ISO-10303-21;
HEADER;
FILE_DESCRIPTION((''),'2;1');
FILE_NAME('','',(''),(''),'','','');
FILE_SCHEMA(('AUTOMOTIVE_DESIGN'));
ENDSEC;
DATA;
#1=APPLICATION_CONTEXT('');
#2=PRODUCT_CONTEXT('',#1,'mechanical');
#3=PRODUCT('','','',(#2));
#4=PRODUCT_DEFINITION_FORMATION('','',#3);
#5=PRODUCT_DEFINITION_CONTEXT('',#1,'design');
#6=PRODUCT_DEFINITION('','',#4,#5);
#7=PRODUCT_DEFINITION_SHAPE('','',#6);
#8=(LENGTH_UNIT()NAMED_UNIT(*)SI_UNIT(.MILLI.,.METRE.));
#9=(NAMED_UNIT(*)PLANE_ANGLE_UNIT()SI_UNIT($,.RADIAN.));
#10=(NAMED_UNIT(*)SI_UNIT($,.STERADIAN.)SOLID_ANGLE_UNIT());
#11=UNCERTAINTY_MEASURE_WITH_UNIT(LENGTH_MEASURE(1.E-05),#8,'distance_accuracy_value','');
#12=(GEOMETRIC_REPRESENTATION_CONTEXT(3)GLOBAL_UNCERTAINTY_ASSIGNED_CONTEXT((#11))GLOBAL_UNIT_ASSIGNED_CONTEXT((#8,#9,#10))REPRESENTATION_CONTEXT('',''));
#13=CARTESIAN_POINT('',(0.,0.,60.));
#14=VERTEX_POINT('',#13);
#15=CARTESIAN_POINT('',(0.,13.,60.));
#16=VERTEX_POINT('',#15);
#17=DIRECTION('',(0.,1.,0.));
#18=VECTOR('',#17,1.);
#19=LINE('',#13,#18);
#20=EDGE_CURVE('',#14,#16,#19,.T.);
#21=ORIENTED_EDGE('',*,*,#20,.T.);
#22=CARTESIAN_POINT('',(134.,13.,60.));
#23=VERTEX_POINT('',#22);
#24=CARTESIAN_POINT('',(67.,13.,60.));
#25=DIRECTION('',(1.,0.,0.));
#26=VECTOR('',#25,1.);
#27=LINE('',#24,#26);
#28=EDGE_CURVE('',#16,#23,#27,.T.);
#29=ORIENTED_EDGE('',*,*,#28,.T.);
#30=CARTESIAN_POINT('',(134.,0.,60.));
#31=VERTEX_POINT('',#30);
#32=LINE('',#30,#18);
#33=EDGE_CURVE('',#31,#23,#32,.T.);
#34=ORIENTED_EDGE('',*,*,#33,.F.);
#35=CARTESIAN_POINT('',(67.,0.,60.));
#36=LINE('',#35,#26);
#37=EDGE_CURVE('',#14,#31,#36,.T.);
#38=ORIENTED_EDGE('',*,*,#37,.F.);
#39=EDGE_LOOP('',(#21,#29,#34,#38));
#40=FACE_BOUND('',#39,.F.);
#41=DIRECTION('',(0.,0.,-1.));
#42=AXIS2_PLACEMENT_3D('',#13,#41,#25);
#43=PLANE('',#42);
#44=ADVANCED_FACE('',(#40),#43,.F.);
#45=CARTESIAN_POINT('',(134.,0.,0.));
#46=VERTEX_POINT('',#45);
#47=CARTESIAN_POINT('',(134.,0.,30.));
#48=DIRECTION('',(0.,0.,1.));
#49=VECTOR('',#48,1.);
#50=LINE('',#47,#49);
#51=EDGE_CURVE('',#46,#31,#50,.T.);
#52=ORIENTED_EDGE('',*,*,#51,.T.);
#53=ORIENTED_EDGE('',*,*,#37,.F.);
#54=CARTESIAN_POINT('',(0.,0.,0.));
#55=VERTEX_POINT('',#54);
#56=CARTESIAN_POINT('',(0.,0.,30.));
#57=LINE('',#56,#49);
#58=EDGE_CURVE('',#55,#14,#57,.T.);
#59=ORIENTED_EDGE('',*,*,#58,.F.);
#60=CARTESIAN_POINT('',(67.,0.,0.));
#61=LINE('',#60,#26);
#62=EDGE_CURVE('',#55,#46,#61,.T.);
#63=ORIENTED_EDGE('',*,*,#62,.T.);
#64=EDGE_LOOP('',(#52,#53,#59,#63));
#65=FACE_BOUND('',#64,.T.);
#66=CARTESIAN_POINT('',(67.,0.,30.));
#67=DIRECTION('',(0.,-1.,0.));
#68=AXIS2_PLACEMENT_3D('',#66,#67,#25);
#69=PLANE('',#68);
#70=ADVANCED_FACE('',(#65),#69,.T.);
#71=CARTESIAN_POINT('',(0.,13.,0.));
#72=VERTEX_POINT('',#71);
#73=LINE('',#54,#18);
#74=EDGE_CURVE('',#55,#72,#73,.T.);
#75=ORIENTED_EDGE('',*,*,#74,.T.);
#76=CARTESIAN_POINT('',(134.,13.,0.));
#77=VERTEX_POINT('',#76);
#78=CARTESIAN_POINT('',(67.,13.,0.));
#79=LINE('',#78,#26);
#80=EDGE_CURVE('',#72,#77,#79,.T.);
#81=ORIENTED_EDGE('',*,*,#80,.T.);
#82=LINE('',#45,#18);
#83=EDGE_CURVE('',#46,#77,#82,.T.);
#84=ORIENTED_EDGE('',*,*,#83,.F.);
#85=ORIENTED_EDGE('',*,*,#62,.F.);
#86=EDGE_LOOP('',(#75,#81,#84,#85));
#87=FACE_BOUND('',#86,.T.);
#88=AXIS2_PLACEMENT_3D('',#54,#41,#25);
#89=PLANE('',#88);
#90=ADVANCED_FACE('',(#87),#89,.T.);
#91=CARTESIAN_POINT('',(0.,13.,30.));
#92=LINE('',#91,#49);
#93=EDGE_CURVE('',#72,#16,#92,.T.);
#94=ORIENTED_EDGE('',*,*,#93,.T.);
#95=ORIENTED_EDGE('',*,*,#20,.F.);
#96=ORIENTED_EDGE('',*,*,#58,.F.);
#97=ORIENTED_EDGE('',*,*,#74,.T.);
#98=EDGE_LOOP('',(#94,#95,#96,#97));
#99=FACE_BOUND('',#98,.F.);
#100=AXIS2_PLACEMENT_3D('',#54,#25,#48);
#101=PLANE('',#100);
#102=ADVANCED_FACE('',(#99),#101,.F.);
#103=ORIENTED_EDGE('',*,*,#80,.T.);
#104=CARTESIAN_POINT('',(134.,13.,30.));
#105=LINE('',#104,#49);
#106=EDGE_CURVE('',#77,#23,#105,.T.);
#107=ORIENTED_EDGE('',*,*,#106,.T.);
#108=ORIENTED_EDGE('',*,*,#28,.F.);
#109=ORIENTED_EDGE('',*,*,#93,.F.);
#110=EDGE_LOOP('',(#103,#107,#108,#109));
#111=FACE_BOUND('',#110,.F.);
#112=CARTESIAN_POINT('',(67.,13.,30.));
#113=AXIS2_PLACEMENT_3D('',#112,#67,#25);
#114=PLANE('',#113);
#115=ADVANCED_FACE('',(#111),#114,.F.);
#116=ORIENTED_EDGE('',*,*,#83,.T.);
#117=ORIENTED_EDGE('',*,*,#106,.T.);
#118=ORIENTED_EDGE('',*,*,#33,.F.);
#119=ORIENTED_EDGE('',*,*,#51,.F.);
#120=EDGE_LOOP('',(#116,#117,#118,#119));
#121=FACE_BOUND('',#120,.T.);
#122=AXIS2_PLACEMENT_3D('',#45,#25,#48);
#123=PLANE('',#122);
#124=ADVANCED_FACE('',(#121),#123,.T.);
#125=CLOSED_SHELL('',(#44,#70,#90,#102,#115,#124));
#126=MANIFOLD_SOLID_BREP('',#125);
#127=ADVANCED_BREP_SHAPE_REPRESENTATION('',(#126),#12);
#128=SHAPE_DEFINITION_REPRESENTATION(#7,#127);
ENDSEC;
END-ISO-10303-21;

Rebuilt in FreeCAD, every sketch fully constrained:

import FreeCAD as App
import Part
import Sketcher
from FreeCAD import Vector
Q = App.Units.Quantity


def add_polygon(sketch, points):
    """Adds a closed chain of lines whose ends are joined by coincident constraints."""
    first, n = sketch.GeometryCount, len(points)
    for a, b in zip(points, points[1:] + points[:1]):
        sketch.addGeometry(Part.LineSegment(App.Vector(*a, 0), App.Vector(*b, 0)), False)
    for i in range(n):
        sketch.addConstraint(Sketcher.Constraint("Coincident", first + i, 2, first + (i + 1) % n, 1))

doc = App.newDocument("Part")
params = doc.addObject("Spreadsheet::Sheet", "Params")
for row, (alias, value) in enumerate([
    ("sketch1_width", "134 mm"),
    ("sketch1_height", "60 mm"),
    ("pad1_length", "13 mm"),
], start=1):
    params.set(f"A{row}", alias)
    params.set(f"B{row}", "=" + value)
    params.setAlias(f"B{row}", alias)

body = doc.addObject("PartDesign::Body", "Body")

sketch1 = doc.addObject("Sketcher::SketchObject", "Sketch")
body.addObject(sketch1)
sketch1.AttachmentSupport = (doc.XZ_Plane, [""])
sketch1.MapMode = "FlatFace"
add_polygon(sketch1, [(0, 60), (0, 0), (134, 0), (134, 60)])
sketch1.addConstraint([
    Sketcher.Constraint("Vertical", 0),
    Sketcher.Constraint("Horizontal", 1),
    Sketcher.Constraint("Vertical", 2),
    Sketcher.Constraint("Horizontal", 3),
    Sketcher.Constraint("Coincident", 0, 2, -1, 1),
    Sketcher.Constraint("DistanceX", 1, 1, 1, 2, Q("134 mm")),
    Sketcher.Constraint("DistanceY", 0, 2, 0, 1, Q("60 mm")),
])
sketch1.setExpression("Constraints[9]", "Params.sketch1_width")
sketch1.setExpression("Constraints[10]", "Params.sketch1_height")
pad1 = doc.addObject("PartDesign::Pad", "Pad")
body.addObject(pad1)
pad1.Profile = sketch1
pad1.setExpression("Length", "Params.pad1_length")
pad1.Reversed = True

doc.recompute()
